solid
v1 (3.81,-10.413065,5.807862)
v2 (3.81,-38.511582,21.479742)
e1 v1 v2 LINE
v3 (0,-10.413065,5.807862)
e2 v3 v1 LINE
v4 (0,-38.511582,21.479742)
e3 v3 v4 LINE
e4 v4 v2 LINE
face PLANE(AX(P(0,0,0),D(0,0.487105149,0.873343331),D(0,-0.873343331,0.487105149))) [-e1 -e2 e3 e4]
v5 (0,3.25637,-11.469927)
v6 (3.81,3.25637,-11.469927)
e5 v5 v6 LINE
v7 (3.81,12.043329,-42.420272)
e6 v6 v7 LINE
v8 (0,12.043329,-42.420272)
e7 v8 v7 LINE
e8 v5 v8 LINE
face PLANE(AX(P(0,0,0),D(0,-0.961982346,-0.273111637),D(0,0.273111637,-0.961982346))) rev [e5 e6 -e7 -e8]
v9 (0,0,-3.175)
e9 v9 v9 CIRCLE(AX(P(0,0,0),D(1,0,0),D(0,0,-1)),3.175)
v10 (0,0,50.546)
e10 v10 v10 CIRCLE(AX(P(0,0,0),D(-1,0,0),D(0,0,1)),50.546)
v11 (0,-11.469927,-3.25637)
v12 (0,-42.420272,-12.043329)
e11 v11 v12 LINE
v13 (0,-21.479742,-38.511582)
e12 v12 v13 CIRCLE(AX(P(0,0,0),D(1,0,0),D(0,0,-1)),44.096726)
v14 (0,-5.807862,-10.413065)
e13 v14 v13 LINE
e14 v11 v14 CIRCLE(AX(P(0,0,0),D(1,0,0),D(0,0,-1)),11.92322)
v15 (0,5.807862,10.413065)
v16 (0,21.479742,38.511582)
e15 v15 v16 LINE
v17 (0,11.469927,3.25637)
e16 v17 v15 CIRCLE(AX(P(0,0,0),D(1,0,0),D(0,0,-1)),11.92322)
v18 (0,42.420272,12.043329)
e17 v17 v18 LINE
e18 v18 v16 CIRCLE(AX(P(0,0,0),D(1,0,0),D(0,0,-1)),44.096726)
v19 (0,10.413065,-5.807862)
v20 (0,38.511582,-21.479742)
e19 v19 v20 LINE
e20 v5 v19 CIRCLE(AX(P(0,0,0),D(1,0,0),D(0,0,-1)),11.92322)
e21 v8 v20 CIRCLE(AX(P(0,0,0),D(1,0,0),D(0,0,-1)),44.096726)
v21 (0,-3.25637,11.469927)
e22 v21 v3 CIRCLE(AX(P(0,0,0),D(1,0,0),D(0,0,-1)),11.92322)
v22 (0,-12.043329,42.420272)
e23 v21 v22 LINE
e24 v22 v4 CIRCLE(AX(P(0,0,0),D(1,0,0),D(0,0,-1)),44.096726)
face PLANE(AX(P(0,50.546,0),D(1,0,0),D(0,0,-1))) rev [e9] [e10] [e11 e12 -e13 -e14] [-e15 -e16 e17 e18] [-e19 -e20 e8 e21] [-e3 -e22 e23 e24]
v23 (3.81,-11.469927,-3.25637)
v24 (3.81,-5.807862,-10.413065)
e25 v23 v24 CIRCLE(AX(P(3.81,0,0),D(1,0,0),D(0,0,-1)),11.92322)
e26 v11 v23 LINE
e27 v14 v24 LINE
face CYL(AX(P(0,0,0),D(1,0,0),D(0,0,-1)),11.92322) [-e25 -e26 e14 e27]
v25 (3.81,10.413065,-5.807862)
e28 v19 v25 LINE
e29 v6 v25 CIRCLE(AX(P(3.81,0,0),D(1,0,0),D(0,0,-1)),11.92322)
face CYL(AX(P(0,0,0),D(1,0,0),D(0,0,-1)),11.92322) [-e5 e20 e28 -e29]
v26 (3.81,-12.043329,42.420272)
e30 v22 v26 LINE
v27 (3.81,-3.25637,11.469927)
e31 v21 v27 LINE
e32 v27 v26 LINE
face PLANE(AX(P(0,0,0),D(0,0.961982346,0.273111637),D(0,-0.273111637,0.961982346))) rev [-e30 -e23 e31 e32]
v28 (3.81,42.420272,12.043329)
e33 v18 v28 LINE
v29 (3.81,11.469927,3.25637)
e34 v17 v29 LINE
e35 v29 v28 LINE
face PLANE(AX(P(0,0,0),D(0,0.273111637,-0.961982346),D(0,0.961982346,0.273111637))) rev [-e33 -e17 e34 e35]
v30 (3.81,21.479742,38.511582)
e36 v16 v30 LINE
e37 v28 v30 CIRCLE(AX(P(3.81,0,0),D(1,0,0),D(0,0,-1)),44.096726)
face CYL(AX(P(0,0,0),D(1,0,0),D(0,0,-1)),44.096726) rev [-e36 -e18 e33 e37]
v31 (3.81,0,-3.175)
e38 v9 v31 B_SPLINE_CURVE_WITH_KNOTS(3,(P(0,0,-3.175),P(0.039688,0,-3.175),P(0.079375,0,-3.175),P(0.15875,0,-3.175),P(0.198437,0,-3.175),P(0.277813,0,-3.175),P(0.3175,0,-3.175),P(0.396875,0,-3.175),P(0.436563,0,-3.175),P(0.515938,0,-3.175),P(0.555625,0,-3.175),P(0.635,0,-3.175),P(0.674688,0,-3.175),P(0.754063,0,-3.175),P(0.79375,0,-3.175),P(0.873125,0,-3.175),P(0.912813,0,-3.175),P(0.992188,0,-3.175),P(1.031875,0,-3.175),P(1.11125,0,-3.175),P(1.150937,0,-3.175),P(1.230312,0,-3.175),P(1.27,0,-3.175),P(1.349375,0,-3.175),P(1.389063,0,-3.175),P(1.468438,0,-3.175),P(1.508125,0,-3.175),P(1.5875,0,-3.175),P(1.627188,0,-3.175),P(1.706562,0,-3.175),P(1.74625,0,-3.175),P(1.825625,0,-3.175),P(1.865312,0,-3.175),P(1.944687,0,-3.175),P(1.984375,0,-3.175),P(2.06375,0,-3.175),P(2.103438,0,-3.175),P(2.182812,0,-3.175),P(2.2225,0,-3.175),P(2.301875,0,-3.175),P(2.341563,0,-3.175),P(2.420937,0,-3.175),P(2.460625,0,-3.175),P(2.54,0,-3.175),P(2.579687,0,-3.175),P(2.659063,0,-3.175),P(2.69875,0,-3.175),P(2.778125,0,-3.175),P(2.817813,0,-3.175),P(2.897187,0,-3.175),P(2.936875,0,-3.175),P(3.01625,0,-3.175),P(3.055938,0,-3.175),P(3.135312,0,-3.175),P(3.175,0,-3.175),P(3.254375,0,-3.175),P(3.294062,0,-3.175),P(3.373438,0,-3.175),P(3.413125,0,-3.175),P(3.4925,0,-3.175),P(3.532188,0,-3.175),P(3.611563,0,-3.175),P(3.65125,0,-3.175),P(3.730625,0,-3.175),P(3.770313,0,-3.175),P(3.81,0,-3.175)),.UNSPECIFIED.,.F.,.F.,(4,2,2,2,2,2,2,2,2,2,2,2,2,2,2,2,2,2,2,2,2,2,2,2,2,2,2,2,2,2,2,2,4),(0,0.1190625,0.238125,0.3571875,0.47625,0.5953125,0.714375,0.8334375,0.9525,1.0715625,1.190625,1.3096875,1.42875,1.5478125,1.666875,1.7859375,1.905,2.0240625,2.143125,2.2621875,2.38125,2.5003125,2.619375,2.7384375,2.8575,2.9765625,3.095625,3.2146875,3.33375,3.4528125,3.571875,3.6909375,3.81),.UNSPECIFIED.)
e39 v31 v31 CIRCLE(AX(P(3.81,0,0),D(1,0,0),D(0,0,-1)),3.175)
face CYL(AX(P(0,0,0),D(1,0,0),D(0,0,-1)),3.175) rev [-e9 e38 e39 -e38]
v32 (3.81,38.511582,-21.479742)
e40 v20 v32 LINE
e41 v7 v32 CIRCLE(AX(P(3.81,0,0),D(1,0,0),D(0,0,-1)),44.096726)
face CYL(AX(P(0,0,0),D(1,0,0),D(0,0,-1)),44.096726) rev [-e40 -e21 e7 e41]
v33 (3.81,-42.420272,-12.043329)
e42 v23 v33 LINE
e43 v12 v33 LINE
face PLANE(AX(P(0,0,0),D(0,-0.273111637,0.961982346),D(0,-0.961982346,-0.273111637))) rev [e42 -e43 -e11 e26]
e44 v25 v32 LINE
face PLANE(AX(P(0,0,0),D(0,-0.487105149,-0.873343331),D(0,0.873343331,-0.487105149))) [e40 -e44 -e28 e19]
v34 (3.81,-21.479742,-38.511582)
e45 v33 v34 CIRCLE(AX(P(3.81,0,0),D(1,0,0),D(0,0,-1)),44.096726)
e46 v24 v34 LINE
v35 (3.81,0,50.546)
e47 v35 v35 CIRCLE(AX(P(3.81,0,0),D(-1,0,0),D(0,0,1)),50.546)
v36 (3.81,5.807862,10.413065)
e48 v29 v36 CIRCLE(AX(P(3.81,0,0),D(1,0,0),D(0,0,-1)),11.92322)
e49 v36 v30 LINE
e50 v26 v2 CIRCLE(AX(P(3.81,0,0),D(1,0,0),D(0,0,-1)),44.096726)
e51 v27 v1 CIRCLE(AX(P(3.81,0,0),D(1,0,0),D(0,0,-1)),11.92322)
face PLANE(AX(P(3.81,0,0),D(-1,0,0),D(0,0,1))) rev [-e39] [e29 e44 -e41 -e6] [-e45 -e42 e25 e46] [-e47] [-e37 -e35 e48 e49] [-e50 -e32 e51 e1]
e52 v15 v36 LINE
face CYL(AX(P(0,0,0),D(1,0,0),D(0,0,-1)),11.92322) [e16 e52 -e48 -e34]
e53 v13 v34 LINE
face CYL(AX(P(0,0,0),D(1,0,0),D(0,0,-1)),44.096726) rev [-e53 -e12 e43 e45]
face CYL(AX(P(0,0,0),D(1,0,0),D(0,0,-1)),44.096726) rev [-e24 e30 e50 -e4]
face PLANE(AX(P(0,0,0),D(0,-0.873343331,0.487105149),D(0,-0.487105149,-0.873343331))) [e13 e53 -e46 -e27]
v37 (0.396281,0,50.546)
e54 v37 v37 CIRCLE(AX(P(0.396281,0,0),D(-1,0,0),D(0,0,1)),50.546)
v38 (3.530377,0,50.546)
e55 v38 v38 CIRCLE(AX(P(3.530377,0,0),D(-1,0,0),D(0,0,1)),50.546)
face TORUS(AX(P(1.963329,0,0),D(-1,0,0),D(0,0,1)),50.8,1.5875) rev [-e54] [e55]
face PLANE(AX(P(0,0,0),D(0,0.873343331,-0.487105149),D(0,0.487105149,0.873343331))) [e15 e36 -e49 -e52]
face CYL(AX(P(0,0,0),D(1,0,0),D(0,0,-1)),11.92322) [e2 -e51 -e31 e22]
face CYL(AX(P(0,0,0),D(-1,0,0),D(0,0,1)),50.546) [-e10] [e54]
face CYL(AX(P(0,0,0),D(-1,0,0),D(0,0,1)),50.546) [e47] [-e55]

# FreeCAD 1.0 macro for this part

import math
import FreeCAD as App
import Part
import Sketcher

V = App.Vector
Q = App.Units.Quantity

doc = App.newDocument("Part")
body = doc.addObject("PartDesign::Body", "Body")

# Sketch on XY plane
sketch1 = body.newObject("Sketcher::SketchObject", "Sketch")
sketch1.AttachmentSupport = (doc.getObject("XY_Plane"), [""])
sketch1.MapMode = "FlatFace"
sketch1.addGeometry(Part.LineSegment(V(0, 0, 0), V(3.81, 0, 0)), False)
sketch1.addGeometry(Part.LineSegment(V(3.81, 0, 0), V(3.81, 50.55, 0)), False)
sketch1.addGeometry(Part.LineSegment(V(3.81, 50.55, 0), V(3.53, 50.55, 0)), False)
sketch1.addGeometry(Part.ArcOfCircle(Part.Circle(V(1.96, 50.8, 0), V(0, 0, 1), 1.59), math.radians(-171), math.radians(-9)), False)
sketch1.addGeometry(Part.LineSegment(V(0.4, 50.55, 0), V(0, 50.55, 0)), False)
sketch1.addGeometry(Part.LineSegment(V(0, 50.55, 0), V(0, 0, 0)), False)
sketch1.addConstraint(Sketcher.Constraint("Coincident", 0, 2, 1, 1))
sketch1.addConstraint(Sketcher.Constraint("Coincident", 1, 2, 2, 1))
sketch1.addConstraint(Sketcher.Constraint("Coincident", 2, 2, 3, 2))
sketch1.addConstraint(Sketcher.Constraint("Coincident", 3, 1, 4, 1))
sketch1.addConstraint(Sketcher.Constraint("Coincident", 4, 2, 5, 1))
sketch1.addConstraint(Sketcher.Constraint("Coincident", 5, 2, 0, 1))
sketch1.addConstraint(Sketcher.Constraint("Horizontal", 0))
sketch1.addConstraint(Sketcher.Constraint("Vertical", 1))
sketch1.addConstraint(Sketcher.Constraint("Horizontal", 2))
sketch1.addConstraint(Sketcher.Constraint("Horizontal", 4))
sketch1.addConstraint(Sketcher.Constraint("Vertical", 5))
sketch1.addConstraint(Sketcher.Constraint("Coincident", 5, 2, -1, 1))
sketch1.addConstraint(Sketcher.Constraint("Horizontal", 2, 2, 3, 1))
sketch1.addConstraint(Sketcher.Constraint("DistanceY", -1, 1, 3, 3, Q("2 in")))
sketch1.addConstraint(Sketcher.Constraint("Radius", 3, Q("0.0625 in")))
sketch1.addConstraint(Sketcher.Constraint("DistanceX", 0, 1, 0, 2, Q("0.15 in")))
sketch1.addConstraint(Sketcher.Constraint("DistanceY", 1, 1, 1, 2, Q("1.99 in")))
sketch1.addConstraint(Sketcher.Constraint("DistanceX", 4, 2, 4, 1, 0.396281))
revolution = body.newObject("PartDesign::Revolution", "Revolution")
revolution.Profile = sketch1
revolution.ReferenceAxis = (sketch1, ["H_Axis"])
revolution.Angle = 360

# Sketch on YZ plane
sketch2 = body.newObject("Sketcher::SketchObject", "Sketch001")
sketch2.AttachmentSupport = (doc.getObject("YZ_Plane"), [""])
sketch2.MapMode = "FlatFace"
sketch2.AttachmentOffset = App.Placement(V(0, 0, 0.15 * 25.4), App.Rotation())
sketch2.addGeometry(Part.LineSegment(V(21.5, 38.5, 0), V(5.8, 10.4, 0)), False)
sketch2.addGeometry(Part.ArcOfCircle(Part.Circle(V(0, 0, 0), V(0, 0, 1), 11.9), math.radians(16), math.radians(61)), False)
sketch2.addGeometry(Part.LineSegment(V(11.5, 3.3, 0), V(42.4, 12, 0)), False)
sketch2.addGeometry(Part.ArcOfCircle(Part.Circle(V(0, 0, 0), V(0, 0, 1), 44.1), math.radians(16), math.radians(61)), False)
sketch2.addGeometry(Part.LineSegment(V(38.5, -21.5, 0), V(10.4, -5.8, 0)), False)
sketch2.addGeometry(Part.ArcOfCircle(Part.Circle(V(0, 0, 0), V(0, 0, 1), 11.9), math.radians(-74), math.radians(-29)), False)
sketch2.addGeometry(Part.LineSegment(V(3.3, -11.5, 0), V(12, -42.4, 0)), False)
sketch2.addGeometry(Part.ArcOfCircle(Part.Circle(V(0, 0, 0), V(0, 0, 1), 44.1), math.radians(-74), math.radians(-29)), False)
sketch2.addGeometry(Part.LineSegment(V(-21.5, -38.5, 0), V(-5.8, -10.4, 0)), False)
sketch2.addGeometry(Part.ArcOfCircle(Part.Circle(V(0, 0, 0), V(0, 0, 1), 11.9), math.radians(-164), math.radians(-119)), False)
sketch2.addGeometry(Part.LineSegment(V(-11.5, -3.3, 0), V(-42.4, -12, 0)), False)
sketch2.addGeometry(Part.ArcOfCircle(Part.Circle(V(0, 0, 0), V(0, 0, 1), 44.1), math.radians(-164), math.radians(-119)), False)
sketch2.addGeometry(Part.LineSegment(V(-38.5, 21.5, 0), V(-10.4, 5.8, 0)), False)
sketch2.addGeometry(Part.ArcOfCircle(Part.Circle(V(0, 0, 0), V(0, 0, 1), 11.9), math.radians(106), math.radians(151)), False)
sketch2.addGeometry(Part.LineSegment(V(-3.3, 11.5, 0), V(-12, 42.4, 0)), False)
sketch2.addGeometry(Part.ArcOfCircle(Part.Circle(V(0, 0, 0), V(0, 0, 1), 44.1), math.radians(106), math.radians(151)), False)
sketch2.addGeometry(Part.Circle(V(0, 0, 0), V(0, 0, 1), 3.2), False)
sketch2.addConstraint(Sketcher.Constraint("Coincident", 0, 2, 1, 2))
sketch2.addConstraint(Sketcher.Constraint("Coincident", 1, 1, 2, 1))
sketch2.addConstraint(Sketcher.Constraint("Coincident", 2, 2, 3, 1))
sketch2.addConstraint(Sketcher.Constraint("Coincident", 3, 2, 0, 1))
sketch2.addConstraint(Sketcher.Constraint("Coincident", 4, 2, 5, 2))
sketch2.addConstraint(Sketcher.Constraint("Coincident", 5, 1, 6, 1))
sketch2.addConstraint(Sketcher.Constraint("Coincident", 6, 2, 7, 1))
sketch2.addConstraint(Sketcher.Constraint("Coincident", 7, 2, 4, 1))
sketch2.addConstraint(Sketcher.Constraint("Coincident", 8, 2, 9, 2))
sketch2.addConstraint(Sketcher.Constraint("Coincident", 9, 1, 10, 1))
sketch2.addConstraint(Sketcher.Constraint("Coincident", 10, 2, 11, 1))
sketch2.addConstraint(Sketcher.Constraint("Coincident", 11, 2, 8, 1))
sketch2.addConstraint(Sketcher.Constraint("Coincident", 12, 2, 13, 2))
sketch2.addConstraint(Sketcher.Constraint("Coincident", 13, 1, 14, 1))
sketch2.addConstraint(Sketcher.Constraint("Coincident", 14, 2, 15, 1))
sketch2.addConstraint(Sketcher.Constraint("Coincident", 15, 2, 12, 1))
sketch2.addConstraint(Sketcher.Constraint("Coincident", 1, 3, -1, 1))
sketch2.addConstraint(Sketcher.Constraint("Coincident", 3, 3, -1, 1))
sketch2.addConstraint(Sketcher.Constraint("Coincident", 5, 3, -1, 1))
sketch2.addConstraint(Sketcher.Constraint("Coincident", 7, 3, -1, 1))
sketch2.addConstraint(Sketcher.Constraint("Coincident", 9, 3, -1, 1))
sketch2.addConstraint(Sketcher.Constraint("Coincident", 11, 3, -1, 1))
sketch2.addConstraint(Sketcher.Constraint("Coincident", 13, 3, -1, 1))
sketch2.addConstraint(Sketcher.Constraint("Coincident", 15, 3, -1, 1))
sketch2.addConstraint(Sketcher.Constraint("Coincident", 16, 3, -1, 1))
sketch2.addConstraint(Sketcher.Constraint("Equal", 1, 5))
sketch2.addConstraint(Sketcher.Constraint("Equal", 3, 7))
sketch2.addConstraint(Sketcher.Constraint("Equal", 5, 9))
sketch2.addConstraint(Sketcher.Constraint("Equal", 7, 11))
sketch2.addConstraint(Sketcher.Constraint("Equal", 9, 13))
sketch2.addConstraint(Sketcher.Constraint("Equal", 11, 15))
sketch2.addConstraint(Sketcher.Constraint("Perpendicular", 0, 4))
sketch2.addConstraint(Sketcher.Constraint("Perpendicular", 2, 6))
sketch2.addConstraint(Sketcher.Constraint("Perpendicular", 4, 8))
sketch2.addConstraint(Sketcher.Constraint("Perpendicular", 6, 10))
sketch2.addConstraint(Sketcher.Constraint("Perpendicular", 8, 12))
sketch2.addConstraint(Sketcher.Constraint("Perpendicular", 10, 14))
sketch2.addConstraint(Sketcher.Constraint("Diameter", 16, Q("0.25 in")))
sketch2.addConstraint(Sketcher.Constraint("Radius", 1, 11.92322))
sketch2.addConstraint(Sketcher.Constraint("Radius", 3, 44.096726))
sketch2.addConstraint(Sketcher.Constraint("DistanceX", -1, 1, 0, 2, 5.807862))
sketch2.addConstraint(Sketcher.Constraint("DistanceY", -1, 1, 1, 1, 3.25637))
sketch2.addConstraint(Sketcher.Constraint("DistanceY", -1, 1, 2, 2, 12.043329))
sketch2.addConstraint(Sketcher.Constraint("DistanceY", -1, 1, 3, 2, 38.511582))
sketch2.addConstraint(Sketcher.Constraint("DistanceY", 4, 2, -1, 1, 5.807862))
sketch2.addConstraint(Sketcher.Constraint("DistanceX", -1, 1, 5, 1, 3.25637))
sketch2.addConstraint(Sketcher.Constraint("DistanceX", 8, 2, -1, 1, 5.807862))
sketch2.addConstraint(Sketcher.Constraint("DistanceY", 9, 1, -1, 1, 3.25637))
sketch2.addConstraint(Sketcher.Constraint("DistanceY", -1, 1, 12, 2, 5.807862))
sketch2.addConstraint(Sketcher.Constraint("DistanceX", 13, 1, -1, 1, 3.25637))
pocket1 = body.newObject("PartDesign::Pocket", "Pocket")
pocket1.Profile = sketch2
pocket1.Type = "ThroughAll"

doc.recompute()
